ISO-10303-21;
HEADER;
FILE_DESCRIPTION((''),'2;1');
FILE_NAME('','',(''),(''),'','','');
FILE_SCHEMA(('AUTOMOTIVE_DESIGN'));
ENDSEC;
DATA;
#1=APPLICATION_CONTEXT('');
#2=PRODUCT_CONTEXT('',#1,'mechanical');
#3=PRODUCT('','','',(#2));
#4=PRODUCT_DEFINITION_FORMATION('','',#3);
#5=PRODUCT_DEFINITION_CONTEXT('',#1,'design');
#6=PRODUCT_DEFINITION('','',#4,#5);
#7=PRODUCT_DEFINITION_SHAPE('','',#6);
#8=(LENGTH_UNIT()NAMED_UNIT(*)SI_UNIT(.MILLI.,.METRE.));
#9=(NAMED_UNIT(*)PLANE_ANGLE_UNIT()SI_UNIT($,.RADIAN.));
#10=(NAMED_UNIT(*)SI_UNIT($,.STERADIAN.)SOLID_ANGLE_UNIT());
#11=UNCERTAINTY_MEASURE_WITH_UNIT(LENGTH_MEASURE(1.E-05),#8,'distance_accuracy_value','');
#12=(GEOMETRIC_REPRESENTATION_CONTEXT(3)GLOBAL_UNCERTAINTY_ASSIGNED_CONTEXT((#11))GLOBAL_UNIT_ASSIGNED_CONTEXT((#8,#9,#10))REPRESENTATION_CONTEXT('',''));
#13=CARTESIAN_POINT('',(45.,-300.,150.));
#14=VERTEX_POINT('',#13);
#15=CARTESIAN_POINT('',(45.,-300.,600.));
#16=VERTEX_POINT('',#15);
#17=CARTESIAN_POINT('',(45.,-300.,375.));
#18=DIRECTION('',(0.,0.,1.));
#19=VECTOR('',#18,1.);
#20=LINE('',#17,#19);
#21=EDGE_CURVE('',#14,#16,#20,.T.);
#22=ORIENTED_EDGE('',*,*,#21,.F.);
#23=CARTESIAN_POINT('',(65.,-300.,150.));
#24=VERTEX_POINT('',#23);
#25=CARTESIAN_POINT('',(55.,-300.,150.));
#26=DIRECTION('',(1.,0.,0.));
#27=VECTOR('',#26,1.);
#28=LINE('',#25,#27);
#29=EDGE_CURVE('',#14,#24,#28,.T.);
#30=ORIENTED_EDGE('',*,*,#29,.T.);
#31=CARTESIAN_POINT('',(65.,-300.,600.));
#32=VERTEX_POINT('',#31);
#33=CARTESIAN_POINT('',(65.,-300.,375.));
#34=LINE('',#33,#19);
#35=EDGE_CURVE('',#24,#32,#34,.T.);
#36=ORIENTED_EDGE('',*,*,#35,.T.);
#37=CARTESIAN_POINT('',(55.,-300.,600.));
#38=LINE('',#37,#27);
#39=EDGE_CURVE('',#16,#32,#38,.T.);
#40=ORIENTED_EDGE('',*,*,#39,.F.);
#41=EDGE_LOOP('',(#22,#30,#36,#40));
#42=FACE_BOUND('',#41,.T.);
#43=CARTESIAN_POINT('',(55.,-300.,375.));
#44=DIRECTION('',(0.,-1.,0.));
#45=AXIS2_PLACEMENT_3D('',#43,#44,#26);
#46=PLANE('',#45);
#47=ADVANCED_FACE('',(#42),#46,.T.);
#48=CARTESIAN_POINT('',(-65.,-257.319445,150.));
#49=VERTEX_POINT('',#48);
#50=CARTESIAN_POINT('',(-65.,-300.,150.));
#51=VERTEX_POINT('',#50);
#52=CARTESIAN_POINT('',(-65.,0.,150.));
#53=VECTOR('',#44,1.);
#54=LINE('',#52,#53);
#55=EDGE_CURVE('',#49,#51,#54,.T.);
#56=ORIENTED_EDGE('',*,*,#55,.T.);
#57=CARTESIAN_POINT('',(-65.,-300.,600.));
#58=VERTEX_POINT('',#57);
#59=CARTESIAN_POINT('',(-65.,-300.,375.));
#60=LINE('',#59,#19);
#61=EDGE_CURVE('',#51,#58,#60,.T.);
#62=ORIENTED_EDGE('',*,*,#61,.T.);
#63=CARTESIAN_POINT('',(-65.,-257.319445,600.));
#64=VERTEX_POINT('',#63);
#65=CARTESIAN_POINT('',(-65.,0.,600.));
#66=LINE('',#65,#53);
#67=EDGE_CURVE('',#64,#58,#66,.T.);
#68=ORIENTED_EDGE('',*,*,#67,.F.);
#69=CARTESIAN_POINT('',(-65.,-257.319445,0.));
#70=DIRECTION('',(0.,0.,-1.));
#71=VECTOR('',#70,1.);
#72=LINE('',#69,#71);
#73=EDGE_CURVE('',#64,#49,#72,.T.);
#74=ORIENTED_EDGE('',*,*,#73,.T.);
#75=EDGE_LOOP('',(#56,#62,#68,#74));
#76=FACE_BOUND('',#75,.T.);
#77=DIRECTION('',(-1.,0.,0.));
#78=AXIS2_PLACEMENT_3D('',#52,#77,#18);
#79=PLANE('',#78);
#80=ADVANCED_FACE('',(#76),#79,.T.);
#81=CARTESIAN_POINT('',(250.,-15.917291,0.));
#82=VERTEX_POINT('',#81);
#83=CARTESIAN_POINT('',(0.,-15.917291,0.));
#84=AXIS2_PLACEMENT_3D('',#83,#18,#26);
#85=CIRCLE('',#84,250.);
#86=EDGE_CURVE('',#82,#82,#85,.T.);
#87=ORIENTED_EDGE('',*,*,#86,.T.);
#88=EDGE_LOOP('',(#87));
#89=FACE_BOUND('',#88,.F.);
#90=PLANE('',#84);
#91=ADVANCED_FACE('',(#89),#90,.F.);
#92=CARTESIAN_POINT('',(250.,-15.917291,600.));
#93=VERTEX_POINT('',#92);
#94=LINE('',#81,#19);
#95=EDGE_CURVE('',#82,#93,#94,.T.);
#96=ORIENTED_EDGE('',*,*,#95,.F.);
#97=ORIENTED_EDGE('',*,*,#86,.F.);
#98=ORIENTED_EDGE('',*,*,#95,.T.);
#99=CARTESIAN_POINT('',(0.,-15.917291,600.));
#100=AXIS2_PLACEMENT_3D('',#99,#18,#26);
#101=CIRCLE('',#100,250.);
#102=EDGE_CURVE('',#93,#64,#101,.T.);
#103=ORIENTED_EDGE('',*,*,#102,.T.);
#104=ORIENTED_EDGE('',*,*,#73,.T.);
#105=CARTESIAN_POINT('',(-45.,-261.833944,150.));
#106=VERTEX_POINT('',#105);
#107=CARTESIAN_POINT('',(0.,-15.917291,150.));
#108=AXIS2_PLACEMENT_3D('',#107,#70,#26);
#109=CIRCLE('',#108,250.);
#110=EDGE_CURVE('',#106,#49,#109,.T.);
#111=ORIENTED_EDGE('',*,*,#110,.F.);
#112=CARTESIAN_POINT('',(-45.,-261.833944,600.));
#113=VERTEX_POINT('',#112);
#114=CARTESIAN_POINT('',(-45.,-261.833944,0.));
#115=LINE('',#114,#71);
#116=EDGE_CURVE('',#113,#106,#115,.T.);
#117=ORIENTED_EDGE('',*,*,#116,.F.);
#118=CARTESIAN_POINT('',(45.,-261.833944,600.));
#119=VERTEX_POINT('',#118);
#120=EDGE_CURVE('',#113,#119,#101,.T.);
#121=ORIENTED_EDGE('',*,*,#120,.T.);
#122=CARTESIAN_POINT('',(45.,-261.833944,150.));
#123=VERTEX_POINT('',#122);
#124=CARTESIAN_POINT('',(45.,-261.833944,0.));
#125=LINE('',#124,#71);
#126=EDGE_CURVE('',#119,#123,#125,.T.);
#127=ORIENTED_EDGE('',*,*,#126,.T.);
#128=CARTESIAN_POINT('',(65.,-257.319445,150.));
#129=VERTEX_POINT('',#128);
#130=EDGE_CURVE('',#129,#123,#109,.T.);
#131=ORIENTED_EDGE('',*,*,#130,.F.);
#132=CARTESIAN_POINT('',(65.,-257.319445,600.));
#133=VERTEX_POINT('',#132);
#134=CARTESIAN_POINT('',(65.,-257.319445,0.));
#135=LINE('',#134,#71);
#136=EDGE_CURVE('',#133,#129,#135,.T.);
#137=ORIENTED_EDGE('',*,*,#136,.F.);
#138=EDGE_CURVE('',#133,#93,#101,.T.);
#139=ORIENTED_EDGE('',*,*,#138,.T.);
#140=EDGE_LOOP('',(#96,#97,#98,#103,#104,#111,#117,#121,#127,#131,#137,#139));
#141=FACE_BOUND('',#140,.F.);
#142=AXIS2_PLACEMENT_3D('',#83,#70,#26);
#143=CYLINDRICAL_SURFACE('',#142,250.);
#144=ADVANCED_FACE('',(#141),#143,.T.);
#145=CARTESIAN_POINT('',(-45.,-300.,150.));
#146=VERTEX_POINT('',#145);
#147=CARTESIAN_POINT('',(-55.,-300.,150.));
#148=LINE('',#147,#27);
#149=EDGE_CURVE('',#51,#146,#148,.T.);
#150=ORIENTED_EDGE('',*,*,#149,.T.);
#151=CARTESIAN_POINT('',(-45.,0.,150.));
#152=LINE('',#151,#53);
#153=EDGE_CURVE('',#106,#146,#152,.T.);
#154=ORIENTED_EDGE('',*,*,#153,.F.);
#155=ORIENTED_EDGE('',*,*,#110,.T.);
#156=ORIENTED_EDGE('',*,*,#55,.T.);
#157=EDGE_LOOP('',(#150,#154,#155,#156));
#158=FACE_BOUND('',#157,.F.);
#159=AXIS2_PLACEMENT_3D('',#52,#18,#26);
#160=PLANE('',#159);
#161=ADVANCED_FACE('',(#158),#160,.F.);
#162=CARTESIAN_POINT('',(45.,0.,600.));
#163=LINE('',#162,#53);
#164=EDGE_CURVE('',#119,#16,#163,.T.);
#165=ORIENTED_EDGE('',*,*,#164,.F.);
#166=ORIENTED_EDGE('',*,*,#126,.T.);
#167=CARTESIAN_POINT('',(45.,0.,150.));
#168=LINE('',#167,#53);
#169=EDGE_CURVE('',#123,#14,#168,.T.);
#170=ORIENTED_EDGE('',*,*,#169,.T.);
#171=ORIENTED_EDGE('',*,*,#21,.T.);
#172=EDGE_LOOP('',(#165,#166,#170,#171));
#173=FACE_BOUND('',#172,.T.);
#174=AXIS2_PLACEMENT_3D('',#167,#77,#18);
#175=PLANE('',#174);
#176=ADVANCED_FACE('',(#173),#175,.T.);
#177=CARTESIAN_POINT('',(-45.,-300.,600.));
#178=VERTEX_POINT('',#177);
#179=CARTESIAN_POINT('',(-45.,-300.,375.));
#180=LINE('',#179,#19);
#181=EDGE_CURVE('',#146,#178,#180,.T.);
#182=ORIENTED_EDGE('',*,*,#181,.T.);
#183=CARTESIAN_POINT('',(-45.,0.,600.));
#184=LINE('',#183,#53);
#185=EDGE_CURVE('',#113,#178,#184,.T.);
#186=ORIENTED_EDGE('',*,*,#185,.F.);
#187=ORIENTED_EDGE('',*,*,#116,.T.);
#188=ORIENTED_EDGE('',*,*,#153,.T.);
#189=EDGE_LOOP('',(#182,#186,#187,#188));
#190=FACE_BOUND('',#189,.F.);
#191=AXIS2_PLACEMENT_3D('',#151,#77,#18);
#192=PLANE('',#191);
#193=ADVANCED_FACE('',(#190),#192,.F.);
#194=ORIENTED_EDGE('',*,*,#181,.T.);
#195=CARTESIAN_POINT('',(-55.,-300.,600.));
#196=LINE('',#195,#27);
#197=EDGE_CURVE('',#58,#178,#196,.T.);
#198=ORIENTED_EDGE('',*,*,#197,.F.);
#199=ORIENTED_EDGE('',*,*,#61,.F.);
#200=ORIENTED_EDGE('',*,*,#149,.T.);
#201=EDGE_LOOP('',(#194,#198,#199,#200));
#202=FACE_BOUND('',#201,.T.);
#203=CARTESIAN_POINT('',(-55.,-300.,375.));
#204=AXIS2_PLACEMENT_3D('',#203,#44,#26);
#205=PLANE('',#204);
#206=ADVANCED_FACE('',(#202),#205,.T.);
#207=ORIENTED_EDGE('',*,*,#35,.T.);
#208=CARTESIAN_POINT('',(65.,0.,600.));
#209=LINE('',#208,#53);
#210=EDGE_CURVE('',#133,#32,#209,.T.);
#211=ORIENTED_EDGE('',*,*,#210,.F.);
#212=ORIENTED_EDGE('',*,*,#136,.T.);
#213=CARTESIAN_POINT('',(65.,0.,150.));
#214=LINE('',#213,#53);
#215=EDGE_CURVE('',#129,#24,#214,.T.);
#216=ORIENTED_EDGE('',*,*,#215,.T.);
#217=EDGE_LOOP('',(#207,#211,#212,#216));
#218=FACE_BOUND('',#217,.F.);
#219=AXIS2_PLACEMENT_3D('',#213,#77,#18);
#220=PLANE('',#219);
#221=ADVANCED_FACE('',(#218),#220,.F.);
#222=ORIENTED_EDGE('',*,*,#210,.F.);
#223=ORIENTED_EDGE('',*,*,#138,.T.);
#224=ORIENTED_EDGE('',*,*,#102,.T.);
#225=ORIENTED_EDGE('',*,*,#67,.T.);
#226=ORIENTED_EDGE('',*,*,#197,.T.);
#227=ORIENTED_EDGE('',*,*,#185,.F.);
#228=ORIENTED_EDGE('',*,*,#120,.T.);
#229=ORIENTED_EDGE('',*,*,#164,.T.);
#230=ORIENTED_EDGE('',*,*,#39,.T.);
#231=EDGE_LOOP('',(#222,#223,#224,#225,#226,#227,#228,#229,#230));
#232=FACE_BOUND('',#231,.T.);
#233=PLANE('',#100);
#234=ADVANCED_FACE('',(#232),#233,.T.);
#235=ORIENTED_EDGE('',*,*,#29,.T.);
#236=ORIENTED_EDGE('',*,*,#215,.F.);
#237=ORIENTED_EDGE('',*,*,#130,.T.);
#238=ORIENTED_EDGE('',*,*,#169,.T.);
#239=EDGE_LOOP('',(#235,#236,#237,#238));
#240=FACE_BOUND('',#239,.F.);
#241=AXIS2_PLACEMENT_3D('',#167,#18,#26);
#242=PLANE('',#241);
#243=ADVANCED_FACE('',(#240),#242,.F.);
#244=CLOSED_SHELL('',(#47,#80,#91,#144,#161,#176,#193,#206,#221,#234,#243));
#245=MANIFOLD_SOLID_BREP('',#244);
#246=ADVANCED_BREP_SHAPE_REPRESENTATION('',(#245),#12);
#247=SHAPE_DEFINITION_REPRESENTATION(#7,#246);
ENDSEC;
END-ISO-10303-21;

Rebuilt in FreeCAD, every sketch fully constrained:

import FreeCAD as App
import Part
import Sketcher

V = App.Vector
Q = App.Units.Quantity

doc = App.newDocument("Part")
body = doc.addObject("PartDesign::Body", "Body")

# Sketch on XY plane
sketch1 = body.newObject("Sketcher::SketchObject", "Sketch")
sketch1.AttachmentSupport = (doc.getObject("XY_Plane"), [""])
sketch1.MapMode = "FlatFace"
sketch1.addGeometry(Part.Circle(V(0, -16, 0), V(0, 0, 1), 250), False)
sketch1.addConstraint(Sketcher.Constraint("PointOnObject", 0, 3, -2))
sketch1.addConstraint(Sketcher.Constraint("Diameter", 0, Q("500 mm")))
sketch1.addConstraint(Sketcher.Constraint("DistanceY", 0, 3, -1, 1, Q("15.917291 mm")))
pad1 = body.newObject("PartDesign::Pad", "Pad")
pad1.Profile = sketch1
pad1.Length = 600

# Sketch on XZ plane
sketch2 = body.newObject("Sketcher::SketchObject", "Sketch001")
sketch2.AttachmentSupport = (doc.getObject("XZ_Plane"), [""])
sketch2.MapMode = "FlatFace"
sketch2.addGeometry(Part.LineSegment(V(45, 600, 0), V(45, 150, 0)), False)
sketch2.addGeometry(Part.LineSegment(V(45, 150, 0), V(65, 150, 0)), False)
sketch2.addGeometry(Part.LineSegment(V(65, 150, 0), V(65, 600, 0)), False)
sketch2.addGeometry(Part.LineSegment(V(65, 600, 0), V(45, 600, 0)), False)
sketch2.addGeometry(Part.LineSegment(V(-65, 600, 0), V(-65, 150, 0)), False)
sketch2.addGeometry(Part.LineSegment(V(-65, 150, 0), V(-45, 150, 0)), False)
sketch2.addGeometry(Part.LineSegment(V(-45, 150, 0), V(-45, 600, 0)), False)
sketch2.addGeometry(Part.LineSegment(V(-45, 600, 0), V(-65, 600, 0)), False)
sketch2.addConstraint(Sketcher.Constraint("Coincident", 0, 2, 1, 1))
sketch2.addConstraint(Sketcher.Constraint("Coincident", 1, 2, 2, 1))
sketch2.addConstraint(Sketcher.Constraint("Coincident", 2, 2, 3, 1))
sketch2.addConstraint(Sketcher.Constraint("Coincident", 3, 2, 0, 1))
sketch2.addConstraint(Sketcher.Constraint("Coincident", 4, 2, 5, 1))
sketch2.addConstraint(Sketcher.Constraint("Coincident", 5, 2, 6, 1))
sketch2.addConstraint(Sketcher.Constraint("Coincident", 6, 2, 7, 1))
sketch2.addConstraint(Sketcher.Constraint("Coincident", 7, 2, 4, 1))
sketch2.addConstraint(Sketcher.Constraint("Vertical", 0))
sketch2.addConstraint(Sketcher.Constraint("Horizontal", 1))
sketch2.addConstraint(Sketcher.Constraint("Vertical", 2))
sketch2.addConstraint(Sketcher.Constraint("Horizontal", 3))
sketch2.addConstraint(Sketcher.Constraint("Vertical", 4))
sketch2.addConstraint(Sketcher.Constraint("Horizontal", 5))
sketch2.addConstraint(Sketcher.Constraint("Vertical", 6))
sketch2.addConstraint(Sketcher.Constraint("Horizontal", 7))
sketch2.addConstraint(Sketcher.Constraint("Symmetric", 1, 2, 4, 2, -2))
sketch2.addConstraint(Sketcher.Constraint("Symmetric", 3, 2, 6, 2, -2))
sketch2.addConstraint(Sketcher.Constraint("DistanceX", 1, 1, 1, 2, Q("20 mm")))
sketch2.addConstraint(Sketcher.Constraint("DistanceY", 0, 2, 0, 1, Q("450 mm")))
sketch2.addConstraint(Sketcher.Constraint("DistanceX", -1, 1, 0, 2, Q("45 mm")))
sketch2.addConstraint(Sketcher.Constraint("DistanceY", -1, 1, 0, 2, Q("150 mm")))
pad2 = body.newObject("PartDesign::Pad", "Pad001")
pad2.Profile = sketch2
pad2.Length = 300

doc.recompute()
